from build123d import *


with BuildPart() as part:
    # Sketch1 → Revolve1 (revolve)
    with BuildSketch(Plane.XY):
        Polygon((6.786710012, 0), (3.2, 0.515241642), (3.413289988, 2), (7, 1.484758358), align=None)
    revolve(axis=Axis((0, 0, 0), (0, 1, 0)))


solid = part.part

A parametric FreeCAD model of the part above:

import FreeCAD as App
import Part
import Sketcher

V = App.Vector


def add_polygon(sketch, points):
    """Adds a closed chain of lines whose ends are joined by coincident constraints."""
    first, n = sketch.GeometryCount, len(points)
    for a, b in zip(points, points[1:] + points[:1]):
        sketch.addGeometry(Part.LineSegment(App.Vector(*a, 0), App.Vector(*b, 0)), False)
    for i in range(n):
        sketch.addConstraint(Sketcher.Constraint("Coincident", first + i, 2, first + (i + 1) % n, 1))

doc = App.newDocument("Part")
body = doc.addObject("PartDesign::Body", "Body")

# Sketch on XY plane
sketch1 = body.newObject("Sketcher::SketchObject", "Sketch")
sketch1.AttachmentSupport = (doc.getObject("XY_Plane"), [""])
sketch1.MapMode = "FlatFace"
add_polygon(sketch1, [(3.2, 0.515242), (6.78671, 0), (7, 1.484758), (3.41329, 2)])  # lines 0-3
sketch1.addConstraint([
    Sketcher.Constraint("PointOnObject", 0, 2, -1),
    Sketcher.Constraint("Perpendicular", 0, 1),
    Sketcher.Constraint("Perpendicular", 1, 2),
    Sketcher.Constraint("Perpendicular", 2, 3),
    Sketcher.Constraint("DistanceX", -1, 1, 1, 2, 7.0),
    Sketcher.Constraint("DistanceY", -1, 1, 2, 2, 2.0),
    Sketcher.Constraint("Distance", 1, 1.5),
    Sketcher.Constraint("DistanceX", -1, 1, 3, 2, 3.2),
])
revolution = body.newObject("PartDesign::Revolution", "Revolution")
revolution.Profile = sketch1
revolution.ReferenceAxis = (sketch1, ["V_Axis"])
revolution.Angle = 360

doc.recompute()
